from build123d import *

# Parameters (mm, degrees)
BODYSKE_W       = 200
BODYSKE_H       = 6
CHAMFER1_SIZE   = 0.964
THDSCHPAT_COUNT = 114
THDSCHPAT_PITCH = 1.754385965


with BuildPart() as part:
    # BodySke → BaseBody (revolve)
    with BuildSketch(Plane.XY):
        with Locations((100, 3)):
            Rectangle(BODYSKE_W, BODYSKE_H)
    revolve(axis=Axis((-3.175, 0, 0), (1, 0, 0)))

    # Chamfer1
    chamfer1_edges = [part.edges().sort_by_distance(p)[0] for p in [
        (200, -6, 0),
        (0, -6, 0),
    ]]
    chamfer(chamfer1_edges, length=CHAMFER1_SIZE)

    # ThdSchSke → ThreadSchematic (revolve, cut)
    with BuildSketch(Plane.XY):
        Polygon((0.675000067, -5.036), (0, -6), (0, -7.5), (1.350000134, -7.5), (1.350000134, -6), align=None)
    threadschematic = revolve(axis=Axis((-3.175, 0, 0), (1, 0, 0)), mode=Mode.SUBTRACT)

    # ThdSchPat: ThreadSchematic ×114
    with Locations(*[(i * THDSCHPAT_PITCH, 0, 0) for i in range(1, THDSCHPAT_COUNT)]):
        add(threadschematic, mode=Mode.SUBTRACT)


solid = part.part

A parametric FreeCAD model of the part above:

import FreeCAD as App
import Part
import Sketcher
from FreeCAD import Vector
Q = App.Units.Quantity


def edges_at(feature, points):
    """Names of the edges that pass closest to the given points."""
    edges = feature.Shape.Edges
    near = lambda p: min(range(len(edges)), key=lambda i: edges[i].distToShape(Part.Vertex(*p))[0])
    return sorted({f"Edge{near(p) + 1}" for p in points})


def add_polygon(sketch, points):
    """Adds a closed chain of lines whose ends are joined by coincident constraints."""
    first, n = sketch.GeometryCount, len(points)
    for a, b in zip(points, points[1:] + points[:1]):
        sketch.addGeometry(Part.LineSegment(App.Vector(*a, 0), App.Vector(*b, 0)), False)
    for i in range(n):
        sketch.addConstraint(Sketcher.Constraint("Coincident", first + i, 2, first + (i + 1) % n, 1))

doc = App.newDocument("Part")
body = doc.addObject("PartDesign::Body", "Body")

sketch1 = body.newObject("Sketcher::SketchObject", "Sketch")
sketch1.AttachmentSupport = (doc.getObject("XY_Plane"), [""])
sketch1.MapMode = "FlatFace"
add_polygon(sketch1, [(0, 6), (0, 0), (200, 0), (200, 6)])
sketch1.addConstraint([
    Sketcher.Constraint("Vertical", 0),
    Sketcher.Constraint("Horizontal", 1),
    Sketcher.Constraint("Vertical", 2),
    Sketcher.Constraint("Horizontal", 3),
    Sketcher.Constraint("Coincident", 0, 2, -1, 1),
    Sketcher.Constraint("DistanceX", 1, 1, 1, 2, Q("200 mm")),
    Sketcher.Constraint("DistanceY", 0, 2, 0, 1, Q("6 mm")),
])
revolution = body.newObject("PartDesign::Revolution", "Revolution")
revolution.Profile = sketch1
revolution.ReferenceAxis = (sketch1, ["H_Axis"])
revolution.Angle = 360
doc.recompute()

chamfer = body.newObject("PartDesign::Chamfer", "Chamfer")
chamfer.Base = (revolution, edges_at(revolution, [(200, -6, 0), (0, -6, 0)]))
chamfer.Size = 0.964

sketch2 = body.newObject("Sketcher::SketchObject", "Sketch001")
sketch2.AttachmentSupport = (doc.getObject("XY_Plane"), [""])
sketch2.MapMode = "FlatFace"
add_polygon(sketch2, [(0.7, -5), (0, -6), (0, -7.5), (1.4, -7.5), (1.4, -6)])
sketch2.addConstraint([
    Sketcher.Constraint("Vertical", 1),
    Sketcher.Constraint("Horizontal", 2),
    Sketcher.Constraint("Vertical", 3),
    Sketcher.Constraint("PointOnObject", 0, 2, -2),
    Sketcher.Constraint("Horizontal", 0, 2, 3, 2),
    Sketcher.Constraint("Equal", 0, 4),
    Sketcher.Constraint("Angle", 0, Q("-125 deg")),
    Sketcher.Constraint("DistanceY", 1, 2, 1, 1, Q("1.5 mm")),
    Sketcher.Constraint("DistanceY", 0, 2, -1, 1, Q("6 mm")),
    Sketcher.Constraint("DistanceX", 2, 1, 2, 2, Q("1.35 mm")),
])
groove = body.newObject("PartDesign::Groove", "Groove")
groove.Profile = sketch2
groove.ReferenceAxis = (sketch2, ["H_Axis"])
groove.Angle = 360
doc.recompute()

linearpattern = body.newObject("PartDesign::LinearPattern", "LinearPattern")
linearpattern.Originals = [groove]
linearpattern.Direction = (doc.getObject("X_Axis"), [""])
linearpattern.Mode = "offset"
linearpattern.Offset = 1.754386
linearpattern.Occurrences = 114
body.Tip = linearpattern

doc.recompute()
